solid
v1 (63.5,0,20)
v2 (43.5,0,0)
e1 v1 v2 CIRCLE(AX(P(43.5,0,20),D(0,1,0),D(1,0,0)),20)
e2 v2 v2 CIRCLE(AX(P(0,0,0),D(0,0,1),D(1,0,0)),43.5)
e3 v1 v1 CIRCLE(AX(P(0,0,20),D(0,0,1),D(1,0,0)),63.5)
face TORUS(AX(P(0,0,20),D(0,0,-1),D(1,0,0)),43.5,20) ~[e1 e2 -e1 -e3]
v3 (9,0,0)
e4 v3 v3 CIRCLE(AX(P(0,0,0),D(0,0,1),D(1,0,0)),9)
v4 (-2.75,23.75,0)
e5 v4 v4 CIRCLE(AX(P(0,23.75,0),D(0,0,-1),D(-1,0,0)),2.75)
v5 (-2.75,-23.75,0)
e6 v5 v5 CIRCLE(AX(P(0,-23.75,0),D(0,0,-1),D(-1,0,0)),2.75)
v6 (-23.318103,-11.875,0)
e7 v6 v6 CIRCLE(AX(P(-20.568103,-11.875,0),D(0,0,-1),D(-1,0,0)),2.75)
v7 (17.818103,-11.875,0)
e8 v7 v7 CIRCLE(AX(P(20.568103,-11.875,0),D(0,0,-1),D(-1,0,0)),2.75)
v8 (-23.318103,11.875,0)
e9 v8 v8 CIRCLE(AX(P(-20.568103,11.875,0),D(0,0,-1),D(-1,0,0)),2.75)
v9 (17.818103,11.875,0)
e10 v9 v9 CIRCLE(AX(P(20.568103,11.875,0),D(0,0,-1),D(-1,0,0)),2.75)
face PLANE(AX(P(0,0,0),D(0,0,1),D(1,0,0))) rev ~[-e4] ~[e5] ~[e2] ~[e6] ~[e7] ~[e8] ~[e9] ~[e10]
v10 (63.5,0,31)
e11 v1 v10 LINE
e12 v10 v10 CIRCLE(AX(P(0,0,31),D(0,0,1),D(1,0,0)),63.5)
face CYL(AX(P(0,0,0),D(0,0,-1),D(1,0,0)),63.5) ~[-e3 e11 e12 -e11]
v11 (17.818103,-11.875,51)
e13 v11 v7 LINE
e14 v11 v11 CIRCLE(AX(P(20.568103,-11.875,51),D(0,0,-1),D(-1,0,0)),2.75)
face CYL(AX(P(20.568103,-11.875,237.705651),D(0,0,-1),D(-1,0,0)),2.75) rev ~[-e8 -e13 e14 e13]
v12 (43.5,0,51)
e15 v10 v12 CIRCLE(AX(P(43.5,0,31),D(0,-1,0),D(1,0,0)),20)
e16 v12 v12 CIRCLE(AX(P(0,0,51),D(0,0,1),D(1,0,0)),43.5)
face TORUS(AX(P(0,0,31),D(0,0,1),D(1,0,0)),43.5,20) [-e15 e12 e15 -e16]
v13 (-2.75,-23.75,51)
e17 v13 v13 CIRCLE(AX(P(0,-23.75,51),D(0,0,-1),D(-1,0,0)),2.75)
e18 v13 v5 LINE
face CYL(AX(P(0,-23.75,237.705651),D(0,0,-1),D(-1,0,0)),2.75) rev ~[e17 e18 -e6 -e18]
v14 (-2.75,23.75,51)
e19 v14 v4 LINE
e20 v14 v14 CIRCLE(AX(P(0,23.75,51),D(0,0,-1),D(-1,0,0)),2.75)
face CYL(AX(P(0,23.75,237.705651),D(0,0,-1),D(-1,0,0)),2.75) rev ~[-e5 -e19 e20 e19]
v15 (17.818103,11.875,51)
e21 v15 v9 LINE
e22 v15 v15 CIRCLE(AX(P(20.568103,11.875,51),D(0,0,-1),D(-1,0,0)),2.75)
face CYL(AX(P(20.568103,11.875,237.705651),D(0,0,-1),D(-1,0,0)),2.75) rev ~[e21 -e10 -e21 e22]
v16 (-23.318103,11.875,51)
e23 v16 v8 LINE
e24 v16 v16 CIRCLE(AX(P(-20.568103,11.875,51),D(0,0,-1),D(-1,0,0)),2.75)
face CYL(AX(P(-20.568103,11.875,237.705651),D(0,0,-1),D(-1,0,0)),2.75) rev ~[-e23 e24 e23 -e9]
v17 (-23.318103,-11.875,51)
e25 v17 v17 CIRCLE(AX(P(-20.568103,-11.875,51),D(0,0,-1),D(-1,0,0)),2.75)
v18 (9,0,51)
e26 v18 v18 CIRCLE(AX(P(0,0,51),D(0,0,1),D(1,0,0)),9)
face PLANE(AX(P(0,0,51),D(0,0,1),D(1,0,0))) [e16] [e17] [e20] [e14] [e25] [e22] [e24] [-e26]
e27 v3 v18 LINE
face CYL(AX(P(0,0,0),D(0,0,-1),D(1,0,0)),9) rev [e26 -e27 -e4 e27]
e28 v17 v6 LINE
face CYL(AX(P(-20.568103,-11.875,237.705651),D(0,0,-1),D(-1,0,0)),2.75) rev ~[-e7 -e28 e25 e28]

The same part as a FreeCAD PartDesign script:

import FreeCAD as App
import Part
import Sketcher
Q = App.Units.Quantity


def edges_at(feature, points):
    """Names of the edges that pass closest to the given points."""
    edges = feature.Shape.Edges
    near = lambda p: min(range(len(edges)), key=lambda i: edges[i].distToShape(Part.Vertex(*p))[0])
    return sorted({f"Edge{near(p) + 1}" for p in points})

doc = App.newDocument("Part")
body = doc.addObject("PartDesign::Body", "Body")

sketch1 = body.newObject("Sketcher::SketchObject", "Sketch")
sketch1.AttachmentSupport = (doc.getObject("XY_Plane"), [""])
sketch1.MapMode = "FlatFace"
sketch1.addGeometry([
    Part.Circle(App.Vector(0, 0, 0), App.Vector(0, 0, 1), 64),
    Part.Circle(App.Vector(0, 0, 0), App.Vector(0, 0, 1), 9),
], False)
sketch1.addConstraint([
    Sketcher.Constraint("Coincident", 0, 3, -1, 1),
    Sketcher.Constraint("Coincident", 1, 3, -1, 1),
    Sketcher.Constraint("Diameter", 0, Q("127 mm")),
    Sketcher.Constraint("Diameter", 1, Q("18 mm")),
])
pad1 = body.newObject("PartDesign::Pad", "Pad")
pad1.Profile = sketch1
pad1.Length = 51
doc.recompute()

fillet = body.newObject("PartDesign::Fillet", "Fillet")
fillet.Base = (pad1, edges_at(pad1, [(-63.5, 0, 0), (-63.5, 0, 51)]))
fillet.Radius = 20

sketch2 = body.newObject("Sketcher::SketchObject", "Sketch001")
sketch2.AttachmentSupport = (doc.getObject("XY_Plane"), [""])
sketch2.MapMode = "FlatFace"
sketch2.AttachmentOffset = App.Placement(App.Vector(0, 0, 51), App.Rotation())
sketch2.addGeometry([
    Part.Circle(App.Vector(0, 23.8, 0), App.Vector(0, 0, 1), 2.8),
    Part.Circle(App.Vector(20.6, 11.9, 0), App.Vector(0, 0, 1), 2.8),
    Part.Circle(App.Vector(20.6, -11.9, 0), App.Vector(0, 0, 1), 2.8),
    Part.Circle(App.Vector(0, -23.8, 0), App.Vector(0, 0, 1), 2.8),
    Part.Circle(App.Vector(-20.6, -11.9, 0), App.Vector(0, 0, 1), 2.8),
    Part.Circle(App.Vector(-20.6, 11.9, 0), App.Vector(0, 0, 1), 2.8),
], False)
sketch2.addConstraint([
    Sketcher.Constraint("Equal", 0, 1),
    Sketcher.Constraint("Equal", 1, 2),
    Sketcher.Constraint("Equal", 2, 3),
    Sketcher.Constraint("Equal", 3, 4),
    Sketcher.Constraint("Equal", 4, 5),
    Sketcher.Constraint("Symmetric", 0, 3, 3, 3, -1, 1),
    Sketcher.Constraint("Symmetric", 1, 3, 4, 3, -1, 1),
    Sketcher.Constraint("Symmetric", 2, 3, 5, 3, -1, 1),
    Sketcher.Constraint("Symmetric", 2, 3, 4, 3, -2),
    Sketcher.Constraint("PointOnObject", 0, 3, -2),
    Sketcher.Constraint("Diameter", 0, Q("5.5 mm")),
    Sketcher.Constraint("DistanceY", 3, 3, 0, 3, Q("47.5 mm")),
    Sketcher.Constraint("DistanceY", 2, 3, 1, 3, Q("23.75 mm")),
    Sketcher.Constraint("DistanceX", -1, 1, 1, 3, Q("20.568103 mm")),
])
doc.recompute()
hole = body.newObject("PartDesign::Hole", "Hole")
hole.Profile = sketch2
hole.ThreadType = "None"
hole.Diameter = 5.5
hole.DepthType = "ThroughAll"

doc.recompute()
